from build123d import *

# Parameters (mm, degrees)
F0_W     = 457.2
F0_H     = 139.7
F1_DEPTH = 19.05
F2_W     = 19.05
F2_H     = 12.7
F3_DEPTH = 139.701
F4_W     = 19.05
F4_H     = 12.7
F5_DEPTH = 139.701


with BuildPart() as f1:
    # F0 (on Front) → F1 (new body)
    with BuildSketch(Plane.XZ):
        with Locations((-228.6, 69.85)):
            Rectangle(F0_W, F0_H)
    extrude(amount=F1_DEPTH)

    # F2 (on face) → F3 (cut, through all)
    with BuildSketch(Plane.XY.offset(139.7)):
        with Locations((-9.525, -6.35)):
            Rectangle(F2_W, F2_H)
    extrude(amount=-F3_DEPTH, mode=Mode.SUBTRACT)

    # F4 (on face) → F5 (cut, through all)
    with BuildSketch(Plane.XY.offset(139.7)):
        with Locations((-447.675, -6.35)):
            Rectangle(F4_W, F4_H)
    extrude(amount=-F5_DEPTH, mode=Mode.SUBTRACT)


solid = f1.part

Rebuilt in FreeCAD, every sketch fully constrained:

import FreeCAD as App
import Part
import Sketcher
Q = App.Units.Quantity

doc = App.newDocument("Part")
body = doc.addObject("PartDesign::Body", "Body")

# Sketch on XZ plane
sketch1 = body.newObject("Sketcher::SketchObject", "Sketch")
sketch1.AttachmentSupport = (doc.getObject("XZ_Plane"), [""])
sketch1.MapMode = "FlatFace"
sketch1.addGeometry([
    Part.LineSegment(App.Vector(-457, 140, 0), App.Vector(-457, 0, 0)),
    Part.LineSegment(App.Vector(-457, 0, 0), App.Vector(0, 0, 0)),
    Part.LineSegment(App.Vector(0, 0, 0), App.Vector(0, 140, 0)),
    Part.LineSegment(App.Vector(0, 140, 0), App.Vector(-457, 140, 0)),
], False)
sketch1.addConstraint([
    Sketcher.Constraint("Coincident", 0, 2, 1, 1),
    Sketcher.Constraint("Coincident", 1, 2, 2, 1),
    Sketcher.Constraint("Coincident", 2, 2, 3, 1),
    Sketcher.Constraint("Coincident", 3, 2, 0, 1),
    Sketcher.Constraint("Vertical", 0),
    Sketcher.Constraint("Horizontal", 1),
    Sketcher.Constraint("Vertical", 2),
    Sketcher.Constraint("Horizontal", 3),
    Sketcher.Constraint("Coincident", 1, 2, -1, 1),
    Sketcher.Constraint("DistanceX", 1, 1, 1, 2, Q("18 in")),
    Sketcher.Constraint("DistanceY", 0, 2, 0, 1, Q("5.5 in")),
])
pad1 = body.newObject("PartDesign::Pad", "Pad")
pad1.Profile = sketch1
pad1.Length = Q("0.75 in")

# Sketch on XY plane
sketch2 = body.newObject("Sketcher::SketchObject", "Sketch001")
sketch2.AttachmentSupport = (doc.getObject("XY_Plane"), [""])
sketch2.MapMode = "FlatFace"
sketch2.AttachmentOffset = App.Placement(App.Vector(0, 0, 5.5 * 25.4), App.Rotation())
sketch2.addGeometry([
    Part.LineSegment(App.Vector(-19, 0, 0), App.Vector(-19, -13, 0)),
    Part.LineSegment(App.Vector(-19, -13, 0), App.Vector(0, -13, 0)),
    Part.LineSegment(App.Vector(0, -13, 0), App.Vector(0, 0, 0)),
    Part.LineSegment(App.Vector(0, 0, 0), App.Vector(-19, 0, 0)),
], False)
sketch2.addConstraint([
    Sketcher.Constraint("Coincident", 0, 2, 1, 1),
    Sketcher.Constraint("Coincident", 1, 2, 2, 1),
    Sketcher.Constraint("Coincident", 2, 2, 3, 1),
    Sketcher.Constraint("Coincident", 3, 2, 0, 1),
    Sketcher.Constraint("Vertical", 0),
    Sketcher.Constraint("Horizontal", 1),
    Sketcher.Constraint("Vertical", 2),
    Sketcher.Constraint("Horizontal", 3),
    Sketcher.Constraint("Coincident", 2, 2, -1, 1),
    Sketcher.Constraint("DistanceY", 0, 2, 0, 1, Q("0.5 in")),
    Sketcher.Constraint("DistanceX", 1, 1, 1, 2, Q("0.75 in")),
])
pocket1 = body.newObject("PartDesign::Pocket", "Pocket")
pocket1.Profile = sketch2
pocket1.Type = "ThroughAll"

# Sketch on XY plane
sketch3 = body.newObject("Sketcher::SketchObject", "Sketch002")
sketch3.AttachmentSupport = (doc.getObject("XY_Plane"), [""])
sketch3.MapMode = "FlatFace"
sketch3.AttachmentOffset = App.Placement(App.Vector(0, 0, 5.5 * 25.4), App.Rotation())
sketch3.addGeometry([
    Part.LineSegment(App.Vector(-457, 0, 0), App.Vector(-457, -13, 0)),
    Part.LineSegment(App.Vector(-457, -13, 0), App.Vector(-438, -13, 0)),
    Part.LineSegment(App.Vector(-438, -13, 0), App.Vector(-438, 0, 0)),
    Part.LineSegment(App.Vector(-438, 0, 0), App.Vector(-457, 0, 0)),
], False)
sketch3.addConstraint([
    Sketcher.Constraint("Coincident", 0, 2, 1, 1),
    Sketcher.Constraint("Coincident", 1, 2, 2, 1),
    Sketcher.Constraint("Coincident", 2, 2, 3, 1),
    Sketcher.Constraint("Coincident", 3, 2, 0, 1),
    Sketcher.Constraint("Vertical", 0),
    Sketcher.Constraint("Horizontal", 1),
    Sketcher.Constraint("Vertical", 2),
    Sketcher.Constraint("Horizontal", 3),
    Sketcher.Constraint("PointOnObject", 2, 2, -1),
    Sketcher.Constraint("DistanceY", 0, 2, 0, 1, Q("0.5 in")),
    Sketcher.Constraint("DistanceX", 0, 2, -1, 1, Q("18 in")),
    Sketcher.Constraint("DistanceX", 1, 1, 1, 2, Q("0.75 in")),
])
pocket2 = body.newObject("PartDesign::Pocket", "Pocket001")
pocket2.Profile = sketch3
pocket2.Type = "ThroughAll"

doc.recompute()
